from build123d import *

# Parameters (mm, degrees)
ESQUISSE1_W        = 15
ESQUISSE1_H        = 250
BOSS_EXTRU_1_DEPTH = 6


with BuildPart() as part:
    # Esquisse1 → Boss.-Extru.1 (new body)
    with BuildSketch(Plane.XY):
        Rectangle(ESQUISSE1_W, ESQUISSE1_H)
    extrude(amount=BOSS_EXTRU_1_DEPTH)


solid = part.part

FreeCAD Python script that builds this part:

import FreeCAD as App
import Part
import Sketcher
Q = App.Units.Quantity


def add_polygon(sketch, points):
    """Adds a closed chain of lines whose ends are joined by coincident constraints."""
    first, n = sketch.GeometryCount, len(points)
    for a, b in zip(points, points[1:] + points[:1]):
        sketch.addGeometry(Part.LineSegment(App.Vector(*a, 0), App.Vector(*b, 0)), False)
    for i in range(n):
        sketch.addConstraint(Sketcher.Constraint("Coincident", first + i, 2, first + (i + 1) % n, 1))

doc = App.newDocument("Part")
params = doc.addObject("Spreadsheet::Sheet", "Params")
for row, (alias, value) in enumerate([
    ("sketch1_width", "15 mm"),
    ("sketch1_height", "250 mm"),
    ("pad1_length", "6 mm"),
], start=1):
    params.set(f"A{row}", alias)
    params.set(f"B{row}", "=" + value)
    params.setAlias(f"B{row}", alias)

body = doc.addObject("PartDesign::Body", "Body")

# Sketch on XY plane
sketch1 = body.newObject("Sketcher::SketchObject", "Sketch")
sketch1.AttachmentSupport = (doc.getObject("XY_Plane"), [""])
sketch1.MapMode = "FlatFace"
add_polygon(sketch1, [(-8, 125), (-8, -125), (8, -125), (8, 125)])  # lines 0-3
sketch1.addConstraint(Sketcher.Constraint("Vertical", 0))
sketch1.addConstraint(Sketcher.Constraint("Horizontal", 1))
sketch1.addConstraint(Sketcher.Constraint("Vertical", 2))
sketch1.addConstraint(Sketcher.Constraint("Horizontal", 3))
sketch1.addConstraint(Sketcher.Constraint("Symmetric", 0, 2, 2, 2, -1, 1))
sketch1.addConstraint(Sketcher.Constraint("DistanceX", 1, 1, 1, 2, Q("15 mm")))
sketch1.addConstraint(Sketcher.Constraint("DistanceY", 0, 2, 0, 1, Q("250 mm")))
sketch1.setExpression("Constraints[9]", "Params.sketch1_width")
sketch1.setExpression("Constraints[10]", "Params.sketch1_height")
pad1 = body.newObject("PartDesign::Pad", "Pad")
pad1.Profile = sketch1
pad1.setExpression("Length", "Params.pad1_length")

doc.recompute()
